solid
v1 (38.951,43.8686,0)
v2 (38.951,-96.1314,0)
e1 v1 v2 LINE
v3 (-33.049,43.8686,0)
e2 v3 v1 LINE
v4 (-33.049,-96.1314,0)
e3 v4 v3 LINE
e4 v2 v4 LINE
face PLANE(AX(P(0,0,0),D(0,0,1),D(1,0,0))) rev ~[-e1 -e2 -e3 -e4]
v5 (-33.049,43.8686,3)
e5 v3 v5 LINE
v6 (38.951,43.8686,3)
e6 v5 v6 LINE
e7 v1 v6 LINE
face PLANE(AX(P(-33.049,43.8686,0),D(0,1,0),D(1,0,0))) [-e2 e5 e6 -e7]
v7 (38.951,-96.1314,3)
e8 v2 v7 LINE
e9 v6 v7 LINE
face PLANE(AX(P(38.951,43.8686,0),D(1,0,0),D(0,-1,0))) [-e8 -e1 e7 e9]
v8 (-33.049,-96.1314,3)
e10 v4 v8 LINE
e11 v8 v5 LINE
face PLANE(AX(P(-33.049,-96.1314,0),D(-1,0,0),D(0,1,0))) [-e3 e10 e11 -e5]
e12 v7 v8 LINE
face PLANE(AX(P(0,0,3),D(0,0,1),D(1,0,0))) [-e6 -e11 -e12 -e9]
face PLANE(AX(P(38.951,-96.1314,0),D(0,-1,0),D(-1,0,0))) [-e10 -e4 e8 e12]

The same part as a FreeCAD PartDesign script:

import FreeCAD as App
import Part
import Sketcher

V = App.Vector
Q = App.Units.Quantity

doc = App.newDocument("Part")
params = doc.addObject("Spreadsheet::Sheet", "Params")
for row, (alias, value) in enumerate([
    ("sketch1_width", "72 mm"),
    ("sketch1_height", "140 mm"),
    ("pad1_length", "3 mm"),
], start=1):
    params.set(f"A{row}", alias)
    params.set(f"B{row}", "=" + value)
    params.setAlias(f"B{row}", alias)

body = doc.addObject("PartDesign::Body", "Body")

sketch1 = body.newObject("Sketcher::SketchObject", "Sketch")
sketch1.AttachmentSupport = (doc.getObject("XY_Plane"), [""])
sketch1.MapMode = "FlatFace"
sketch1.addGeometry([
    Part.LineSegment(V(38.951, 43.8686, 0), V(-33.049, 43.8686, 0)),
    Part.LineSegment(V(-33.049, 43.8686, 0), V(-33.049, -96.1314, 0)),
    Part.LineSegment(V(-33.049, -96.1314, 0), V(38.951, -96.1314, 0)),
    Part.LineSegment(V(38.951, -96.1314, 0), V(38.951, 43.8686, 0)),
], False)
sketch1.addConstraint([
    Sketcher.Constraint("Coincident", 0, 2, 1, 1),
    Sketcher.Constraint("Coincident", 1, 2, 2, 1),
    Sketcher.Constraint("Coincident", 2, 2, 3, 1),
    Sketcher.Constraint("Coincident", 3, 2, 0, 1),
    Sketcher.Constraint("Horizontal", 0),
    Sketcher.Constraint("Vertical", 1),
    Sketcher.Constraint("Horizontal", 2),
    Sketcher.Constraint("Vertical", 3),
    Sketcher.Constraint("DistanceX", 0, 2, 0, 1, Q("72 mm")),
    Sketcher.Constraint("DistanceY", 1, 2, 1, 1, Q("140 mm")),
    Sketcher.Constraint("DistanceX", 0, 2, -1, 1, Q("33.049 mm")),
    Sketcher.Constraint("DistanceY", -1, 1, 0, 2, Q("43.8686 mm")),
])
sketch1.setExpression("Constraints[8]", "Params.sketch1_width")
sketch1.setExpression("Constraints[9]", "Params.sketch1_height")
pad1 = body.newObject("PartDesign::Pad", "Pad")
pad1.Profile = sketch1
pad1.setExpression("Length", "Params.pad1_length")

doc.recompute()
